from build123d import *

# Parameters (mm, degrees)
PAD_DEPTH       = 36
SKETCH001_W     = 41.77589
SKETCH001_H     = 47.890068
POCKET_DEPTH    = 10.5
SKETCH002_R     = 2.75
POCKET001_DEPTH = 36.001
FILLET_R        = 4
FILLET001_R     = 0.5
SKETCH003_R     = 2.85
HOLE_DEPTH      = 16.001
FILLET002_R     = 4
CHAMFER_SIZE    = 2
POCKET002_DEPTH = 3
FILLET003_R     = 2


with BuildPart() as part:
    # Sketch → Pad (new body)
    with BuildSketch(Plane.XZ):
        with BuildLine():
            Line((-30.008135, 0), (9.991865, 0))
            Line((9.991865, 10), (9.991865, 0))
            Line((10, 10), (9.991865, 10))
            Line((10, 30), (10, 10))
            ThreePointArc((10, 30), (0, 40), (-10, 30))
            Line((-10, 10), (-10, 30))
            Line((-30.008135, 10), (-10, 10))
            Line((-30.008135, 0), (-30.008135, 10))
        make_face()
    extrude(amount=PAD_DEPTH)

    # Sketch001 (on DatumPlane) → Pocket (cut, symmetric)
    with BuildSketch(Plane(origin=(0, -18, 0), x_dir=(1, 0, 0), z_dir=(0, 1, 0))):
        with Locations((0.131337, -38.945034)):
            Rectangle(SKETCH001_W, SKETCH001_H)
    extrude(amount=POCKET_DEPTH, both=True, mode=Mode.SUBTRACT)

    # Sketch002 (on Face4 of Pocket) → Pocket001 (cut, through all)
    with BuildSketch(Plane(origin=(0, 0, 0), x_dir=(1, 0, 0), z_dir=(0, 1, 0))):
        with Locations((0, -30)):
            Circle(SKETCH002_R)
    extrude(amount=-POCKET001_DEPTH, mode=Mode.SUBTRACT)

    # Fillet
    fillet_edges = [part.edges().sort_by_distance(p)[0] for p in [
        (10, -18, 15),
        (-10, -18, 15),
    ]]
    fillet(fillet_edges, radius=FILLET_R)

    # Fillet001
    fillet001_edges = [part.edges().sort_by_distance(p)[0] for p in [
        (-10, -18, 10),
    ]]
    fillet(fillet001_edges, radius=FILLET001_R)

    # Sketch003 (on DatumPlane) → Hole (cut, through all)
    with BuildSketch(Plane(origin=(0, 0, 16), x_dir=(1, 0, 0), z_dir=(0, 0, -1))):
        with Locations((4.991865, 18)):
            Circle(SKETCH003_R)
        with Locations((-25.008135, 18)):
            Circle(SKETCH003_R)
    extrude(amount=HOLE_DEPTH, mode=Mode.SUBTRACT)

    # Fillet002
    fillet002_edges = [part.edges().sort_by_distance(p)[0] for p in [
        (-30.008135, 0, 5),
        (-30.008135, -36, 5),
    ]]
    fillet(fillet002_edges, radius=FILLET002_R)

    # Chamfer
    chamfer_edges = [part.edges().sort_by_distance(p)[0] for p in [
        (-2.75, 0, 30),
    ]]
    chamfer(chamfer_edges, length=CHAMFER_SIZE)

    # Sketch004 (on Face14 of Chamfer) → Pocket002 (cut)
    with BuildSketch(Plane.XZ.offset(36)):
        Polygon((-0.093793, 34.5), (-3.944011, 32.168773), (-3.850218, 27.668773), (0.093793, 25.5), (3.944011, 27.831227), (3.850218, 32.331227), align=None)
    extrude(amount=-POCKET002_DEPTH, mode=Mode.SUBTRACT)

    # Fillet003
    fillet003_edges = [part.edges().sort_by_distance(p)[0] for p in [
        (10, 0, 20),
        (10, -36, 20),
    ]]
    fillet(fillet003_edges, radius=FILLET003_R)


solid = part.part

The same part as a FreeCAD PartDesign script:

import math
import FreeCAD as App
import Part
import Sketcher
from FreeCAD import Vector
Q = App.Units.Quantity


def edges_at(feature, points):
    """Names of the edges that pass closest to the given points."""
    edges = feature.Shape.Edges
    near = lambda p: min(range(len(edges)), key=lambda i: edges[i].distToShape(Part.Vertex(*p))[0])
    return sorted({f"Edge{near(p) + 1}" for p in points})

doc = App.newDocument("Part")
body = doc.addObject("PartDesign::Body", "Body")

# Sketch on XZ plane
sketch1 = doc.addObject("Sketcher::SketchObject", "Sketch")
body.addObject(sketch1)
sketch1.AttachmentSupport = (doc.XZ_Plane, [""])
sketch1.MapMode = "FlatFace"
sketch1.addGeometry([
    Part.LineSegment(Vector(-30.008135, 0, 0), Vector(9.991865, 0, 0)),  # 0
    Part.LineSegment(Vector(9.991865, 0, 0), Vector(9.991865, 10, 0)),  # 1
    Part.LineSegment(Vector(9.991865, 10, 0), Vector(10, 10, 0)),  # 2
    Part.LineSegment(Vector(10, 10, 0), Vector(10, 30, 0)),  # 3
    Part.ArcOfCircle(Part.Circle(Vector(0, 30, 0), Vector(0, 0, 1), 10), math.radians(0), math.radians(180)),  # 4
    Part.LineSegment(Vector(-10, 30, 0), Vector(-10, 10, 0)),  # 5
    Part.LineSegment(Vector(-10, 10, 0), Vector(-30.008135, 10, 0)),  # 6
    Part.LineSegment(Vector(-30.008135, 10, 0), Vector(-30.008135, 0, 0)),  # 7
], False)
sketch1.addConstraint([
    Sketcher.Constraint("Coincident", 0, 2, 1, 1),
    Sketcher.Constraint("Coincident", 1, 2, 2, 1),
    Sketcher.Constraint("Coincident", 2, 2, 3, 1),
    Sketcher.Constraint("Tangent", 3, 2, 4, 1),
    Sketcher.Constraint("Tangent", 4, 2, 5, 1),
    Sketcher.Constraint("Coincident", 5, 2, 6, 1),
    Sketcher.Constraint("Coincident", 6, 2, 7, 1),
    Sketcher.Constraint("Coincident", 7, 2, 0, 1),
    Sketcher.Constraint("Horizontal", 0),
    Sketcher.Constraint("Vertical", 1),
    Sketcher.Constraint("Horizontal", 2),
    Sketcher.Constraint("Vertical", 3),
    Sketcher.Constraint("Vertical", 5),
    Sketcher.Constraint("Horizontal", 6),
    Sketcher.Constraint("Vertical", 7),
    Sketcher.Constraint("Symmetric", 2, 2, 5, 2, -2),
    Sketcher.Constraint("PointOnObject", 0, 2, -1),
    Sketcher.Constraint("Radius", 4, Q("10 mm")),
    Sketcher.Constraint("DistanceX", 0, 1, 0, 2, Q("40 mm")),
    Sketcher.Constraint("DistanceY", 1, 1, 1, 2, Q("10 mm")),
    Sketcher.Constraint("DistanceY", 3, 1, 3, 2, Q("20 mm")),
    Sketcher.Constraint("DistanceX", 2, 1, 2, 2, Q("0.008135 mm")),
])
pad1 = doc.addObject("PartDesign::Pad", "Pad")
body.addObject(pad1)
pad1.Profile = sketch1
pad1.Length = 36

# Sketch on XZ plane
sketch2 = doc.addObject("Sketcher::SketchObject", "Sketch001")
body.addObject(sketch2)
sketch2.AttachmentSupport = (doc.XZ_Plane, [""])
sketch2.MapMode = "FlatFace"
sketch2.AttachmentOffset = App.Placement(Vector(0, 0, 18), App.Rotation())
sketch2.addGeometry([
    Part.LineSegment(Vector(-20.756608, 15, 0), Vector(-20.756608, 62.890068, 0)),
    Part.LineSegment(Vector(-20.756608, 62.890068, 0), Vector(21.019282, 62.890068, 0)),
    Part.LineSegment(Vector(21.019282, 62.890068, 0), Vector(21.019282, 15, 0)),
    Part.LineSegment(Vector(21.019282, 15, 0), Vector(-20.756608, 15, 0)),
], False)
sketch2.addConstraint([
    Sketcher.Constraint("Coincident", 0, 2, 1, 1),
    Sketcher.Constraint("Coincident", 1, 2, 2, 1),
    Sketcher.Constraint("Coincident", 2, 2, 3, 1),
    Sketcher.Constraint("Coincident", 3, 2, 0, 1),
    Sketcher.Constraint("Vertical", 0),
    Sketcher.Constraint("Horizontal", 1),
    Sketcher.Constraint("Vertical", 2),
    Sketcher.Constraint("Horizontal", 3),
    Sketcher.Constraint("DistanceY", -1, 1, 2, 2, Q("15 mm")),
    Sketcher.Constraint("DistanceX", 1, 1, 1, 2, Q("41.77589 mm")),
    Sketcher.Constraint("DistanceY", 0, 1, 0, 2, Q("47.890068 mm")),
    Sketcher.Constraint("DistanceX", 0, 2, -1, 1, Q("20.756608 mm")),
])
pocket1 = doc.addObject("PartDesign::Pocket", "Pocket")
body.addObject(pocket1)
pocket1.Profile = sketch2
pocket1.Length = 21
pocket1.Midplane = True

# Sketch on XZ plane
sketch3 = doc.addObject("Sketcher::SketchObject", "Sketch002")
body.addObject(sketch3)
sketch3.AttachmentSupport = (doc.XZ_Plane, [""])
sketch3.MapMode = "FlatFace"
sketch3.addGeometry(Part.Circle(Vector(0, 30, 0), Vector(0, 0, 1), 2.75), False)
sketch3.addConstraint([
    Sketcher.Constraint("PointOnObject", 0, 3, -2),
    Sketcher.Constraint("Diameter", 0, Q("5.5 mm")),
    Sketcher.Constraint("DistanceY", -1, 1, 0, 3, Q("30 mm")),
])
pocket2 = doc.addObject("PartDesign::Pocket", "Pocket001")
body.addObject(pocket2)
pocket2.Profile = sketch3
pocket2.Type = "ThroughAll"
pocket2.Reversed = True
doc.recompute()

fillet = doc.addObject("PartDesign::Fillet", "Fillet")
body.addObject(fillet)
fillet.Base = (pocket2, edges_at(pocket2, [(10, -18, 15), (-10, -18, 15)]))
fillet.Radius = 4
doc.recompute()

fillet2 = doc.addObject("PartDesign::Fillet", "Fillet001")
body.addObject(fillet2)
fillet2.Base = (fillet, edges_at(fillet, [(-10, -18, 10)]))
fillet2.Radius = 0.5

# Sketch on XY plane
sketch4 = doc.addObject("Sketcher::SketchObject", "Sketch003")
body.addObject(sketch4)
sketch4.AttachmentSupport = (doc.XY_Plane, [""])
sketch4.MapMode = "FlatFace"
sketch4.AttachmentOffset = App.Placement(Vector(0, 0, 16), App.Rotation())
sketch4.addGeometry([
    Part.Circle(Vector(4.991865, -18, 0), Vector(0, 0, 1), 2.85),
    Part.Circle(Vector(-25.008135, -18, 0), Vector(0, 0, 1), 2.85),
], False)
sketch4.addConstraint([
    Sketcher.Constraint("Equal", 0, 1),
    Sketcher.Constraint("Horizontal", 0, 3, 1, 3),
    Sketcher.Constraint("Diameter", 0, Q("5.7 mm")),
    Sketcher.Constraint("DistanceY", 0, 3, -1, 1, Q("18 mm")),
    Sketcher.Constraint("DistanceX", 1, 3, 0, 3, Q("30 mm")),
    Sketcher.Constraint("DistanceX", -1, 1, 0, 3, Q("4.991865 mm")),
])
pocket3 = doc.addObject("PartDesign::Pocket", "Pocket002")
body.addObject(pocket3)
pocket3.Profile = sketch4
pocket3.Type = "ThroughAll"
doc.recompute()

fillet3 = doc.addObject("PartDesign::Fillet", "Fillet002")
body.addObject(fillet3)
fillet3.Base = (pocket3, edges_at(pocket3, [(-30.008, 0, 5), (-30.008, -36, 5)]))
fillet3.Radius = 4
doc.recompute()

chamfer = doc.addObject("PartDesign::Chamfer", "Chamfer")
body.addObject(chamfer)
chamfer.Base = (fillet3, edges_at(fillet3, [(-2.75, 0, 30)]))
chamfer.Size = 2

# Sketch on XZ plane
sketch5 = doc.addObject("Sketcher::SketchObject", "Sketch004")
body.addObject(sketch5)
sketch5.AttachmentSupport = (doc.XZ_Plane, [""])
sketch5.MapMode = "FlatFace"
sketch5.AttachmentOffset = App.Placement(Vector(0, 0, 36), App.Rotation())
sketch5.addGeometry([
    Part.LineSegment(Vector(-0.093793, 34.5, 0), Vector(-3.944011, 32.168773, 0)),  # 0
    Part.LineSegment(Vector(-3.944011, 32.168773, 0), Vector(-3.850218, 27.668773, 0)),  # 1
    Part.LineSegment(Vector(-3.850218, 27.668773, 0), Vector(0.093793, 25.5, 0)),  # 2
    Part.LineSegment(Vector(0.093793, 25.5, 0), Vector(3.944011, 27.831227, 0)),  # 3
    Part.LineSegment(Vector(3.944011, 27.831227, 0), Vector(3.850218, 32.331227, 0)),  # 4
    Part.LineSegment(Vector(3.850218, 32.331227, 0), Vector(-0.093793, 34.5, 0)),  # 5
], False)
sketch5.addConstraint([
    Sketcher.Constraint("Coincident", 0, 2, 1, 1),
    Sketcher.Constraint("Coincident", 1, 2, 2, 1),
    Sketcher.Constraint("Coincident", 2, 2, 3, 1),
    Sketcher.Constraint("Coincident", 3, 2, 4, 1),
    Sketcher.Constraint("Coincident", 4, 2, 5, 1),
    Sketcher.Constraint("Coincident", 5, 2, 0, 1),
    Sketcher.Constraint("Parallel", 0, 3),
    Sketcher.Constraint("Parallel", 1, 4),
    Sketcher.Constraint("Parallel", 2, 5),
    Sketcher.Constraint("Equal", 0, 1),
    Sketcher.Constraint("Equal", 1, 2),
    Sketcher.Constraint("Equal", 2, 3),
    Sketcher.Constraint("DistanceY", 2, 2, 5, 2, Q("9 mm")),
    Sketcher.Constraint("DistanceY", -1, 1, 2, 2, Q("25.5 mm")),
    Sketcher.Constraint("DistanceY", 1, 2, 0, 2, Q("4.5 mm")),
    Sketcher.Constraint("DistanceX", 0, 2, -1, 1, Q("3.944011 mm")),
    Sketcher.Constraint("DistanceX", -1, 1, 3, 2, Q("3.944011 mm")),
    Sketcher.Constraint("DistanceX", 1, 2, 2, 2, Q("3.944011 mm")),
])
pocket4 = doc.addObject("PartDesign::Pocket", "Pocket003")
body.addObject(pocket4)
pocket4.Profile = sketch5
pocket4.Length = 3
doc.recompute()

fillet4 = doc.addObject("PartDesign::Fillet", "Fillet003")
body.addObject(fillet4)
fillet4.Base = (pocket4, edges_at(pocket4, [(10, 0, 20), (10, -36, 20)]))
fillet4.Radius = 2

doc.recompute()
